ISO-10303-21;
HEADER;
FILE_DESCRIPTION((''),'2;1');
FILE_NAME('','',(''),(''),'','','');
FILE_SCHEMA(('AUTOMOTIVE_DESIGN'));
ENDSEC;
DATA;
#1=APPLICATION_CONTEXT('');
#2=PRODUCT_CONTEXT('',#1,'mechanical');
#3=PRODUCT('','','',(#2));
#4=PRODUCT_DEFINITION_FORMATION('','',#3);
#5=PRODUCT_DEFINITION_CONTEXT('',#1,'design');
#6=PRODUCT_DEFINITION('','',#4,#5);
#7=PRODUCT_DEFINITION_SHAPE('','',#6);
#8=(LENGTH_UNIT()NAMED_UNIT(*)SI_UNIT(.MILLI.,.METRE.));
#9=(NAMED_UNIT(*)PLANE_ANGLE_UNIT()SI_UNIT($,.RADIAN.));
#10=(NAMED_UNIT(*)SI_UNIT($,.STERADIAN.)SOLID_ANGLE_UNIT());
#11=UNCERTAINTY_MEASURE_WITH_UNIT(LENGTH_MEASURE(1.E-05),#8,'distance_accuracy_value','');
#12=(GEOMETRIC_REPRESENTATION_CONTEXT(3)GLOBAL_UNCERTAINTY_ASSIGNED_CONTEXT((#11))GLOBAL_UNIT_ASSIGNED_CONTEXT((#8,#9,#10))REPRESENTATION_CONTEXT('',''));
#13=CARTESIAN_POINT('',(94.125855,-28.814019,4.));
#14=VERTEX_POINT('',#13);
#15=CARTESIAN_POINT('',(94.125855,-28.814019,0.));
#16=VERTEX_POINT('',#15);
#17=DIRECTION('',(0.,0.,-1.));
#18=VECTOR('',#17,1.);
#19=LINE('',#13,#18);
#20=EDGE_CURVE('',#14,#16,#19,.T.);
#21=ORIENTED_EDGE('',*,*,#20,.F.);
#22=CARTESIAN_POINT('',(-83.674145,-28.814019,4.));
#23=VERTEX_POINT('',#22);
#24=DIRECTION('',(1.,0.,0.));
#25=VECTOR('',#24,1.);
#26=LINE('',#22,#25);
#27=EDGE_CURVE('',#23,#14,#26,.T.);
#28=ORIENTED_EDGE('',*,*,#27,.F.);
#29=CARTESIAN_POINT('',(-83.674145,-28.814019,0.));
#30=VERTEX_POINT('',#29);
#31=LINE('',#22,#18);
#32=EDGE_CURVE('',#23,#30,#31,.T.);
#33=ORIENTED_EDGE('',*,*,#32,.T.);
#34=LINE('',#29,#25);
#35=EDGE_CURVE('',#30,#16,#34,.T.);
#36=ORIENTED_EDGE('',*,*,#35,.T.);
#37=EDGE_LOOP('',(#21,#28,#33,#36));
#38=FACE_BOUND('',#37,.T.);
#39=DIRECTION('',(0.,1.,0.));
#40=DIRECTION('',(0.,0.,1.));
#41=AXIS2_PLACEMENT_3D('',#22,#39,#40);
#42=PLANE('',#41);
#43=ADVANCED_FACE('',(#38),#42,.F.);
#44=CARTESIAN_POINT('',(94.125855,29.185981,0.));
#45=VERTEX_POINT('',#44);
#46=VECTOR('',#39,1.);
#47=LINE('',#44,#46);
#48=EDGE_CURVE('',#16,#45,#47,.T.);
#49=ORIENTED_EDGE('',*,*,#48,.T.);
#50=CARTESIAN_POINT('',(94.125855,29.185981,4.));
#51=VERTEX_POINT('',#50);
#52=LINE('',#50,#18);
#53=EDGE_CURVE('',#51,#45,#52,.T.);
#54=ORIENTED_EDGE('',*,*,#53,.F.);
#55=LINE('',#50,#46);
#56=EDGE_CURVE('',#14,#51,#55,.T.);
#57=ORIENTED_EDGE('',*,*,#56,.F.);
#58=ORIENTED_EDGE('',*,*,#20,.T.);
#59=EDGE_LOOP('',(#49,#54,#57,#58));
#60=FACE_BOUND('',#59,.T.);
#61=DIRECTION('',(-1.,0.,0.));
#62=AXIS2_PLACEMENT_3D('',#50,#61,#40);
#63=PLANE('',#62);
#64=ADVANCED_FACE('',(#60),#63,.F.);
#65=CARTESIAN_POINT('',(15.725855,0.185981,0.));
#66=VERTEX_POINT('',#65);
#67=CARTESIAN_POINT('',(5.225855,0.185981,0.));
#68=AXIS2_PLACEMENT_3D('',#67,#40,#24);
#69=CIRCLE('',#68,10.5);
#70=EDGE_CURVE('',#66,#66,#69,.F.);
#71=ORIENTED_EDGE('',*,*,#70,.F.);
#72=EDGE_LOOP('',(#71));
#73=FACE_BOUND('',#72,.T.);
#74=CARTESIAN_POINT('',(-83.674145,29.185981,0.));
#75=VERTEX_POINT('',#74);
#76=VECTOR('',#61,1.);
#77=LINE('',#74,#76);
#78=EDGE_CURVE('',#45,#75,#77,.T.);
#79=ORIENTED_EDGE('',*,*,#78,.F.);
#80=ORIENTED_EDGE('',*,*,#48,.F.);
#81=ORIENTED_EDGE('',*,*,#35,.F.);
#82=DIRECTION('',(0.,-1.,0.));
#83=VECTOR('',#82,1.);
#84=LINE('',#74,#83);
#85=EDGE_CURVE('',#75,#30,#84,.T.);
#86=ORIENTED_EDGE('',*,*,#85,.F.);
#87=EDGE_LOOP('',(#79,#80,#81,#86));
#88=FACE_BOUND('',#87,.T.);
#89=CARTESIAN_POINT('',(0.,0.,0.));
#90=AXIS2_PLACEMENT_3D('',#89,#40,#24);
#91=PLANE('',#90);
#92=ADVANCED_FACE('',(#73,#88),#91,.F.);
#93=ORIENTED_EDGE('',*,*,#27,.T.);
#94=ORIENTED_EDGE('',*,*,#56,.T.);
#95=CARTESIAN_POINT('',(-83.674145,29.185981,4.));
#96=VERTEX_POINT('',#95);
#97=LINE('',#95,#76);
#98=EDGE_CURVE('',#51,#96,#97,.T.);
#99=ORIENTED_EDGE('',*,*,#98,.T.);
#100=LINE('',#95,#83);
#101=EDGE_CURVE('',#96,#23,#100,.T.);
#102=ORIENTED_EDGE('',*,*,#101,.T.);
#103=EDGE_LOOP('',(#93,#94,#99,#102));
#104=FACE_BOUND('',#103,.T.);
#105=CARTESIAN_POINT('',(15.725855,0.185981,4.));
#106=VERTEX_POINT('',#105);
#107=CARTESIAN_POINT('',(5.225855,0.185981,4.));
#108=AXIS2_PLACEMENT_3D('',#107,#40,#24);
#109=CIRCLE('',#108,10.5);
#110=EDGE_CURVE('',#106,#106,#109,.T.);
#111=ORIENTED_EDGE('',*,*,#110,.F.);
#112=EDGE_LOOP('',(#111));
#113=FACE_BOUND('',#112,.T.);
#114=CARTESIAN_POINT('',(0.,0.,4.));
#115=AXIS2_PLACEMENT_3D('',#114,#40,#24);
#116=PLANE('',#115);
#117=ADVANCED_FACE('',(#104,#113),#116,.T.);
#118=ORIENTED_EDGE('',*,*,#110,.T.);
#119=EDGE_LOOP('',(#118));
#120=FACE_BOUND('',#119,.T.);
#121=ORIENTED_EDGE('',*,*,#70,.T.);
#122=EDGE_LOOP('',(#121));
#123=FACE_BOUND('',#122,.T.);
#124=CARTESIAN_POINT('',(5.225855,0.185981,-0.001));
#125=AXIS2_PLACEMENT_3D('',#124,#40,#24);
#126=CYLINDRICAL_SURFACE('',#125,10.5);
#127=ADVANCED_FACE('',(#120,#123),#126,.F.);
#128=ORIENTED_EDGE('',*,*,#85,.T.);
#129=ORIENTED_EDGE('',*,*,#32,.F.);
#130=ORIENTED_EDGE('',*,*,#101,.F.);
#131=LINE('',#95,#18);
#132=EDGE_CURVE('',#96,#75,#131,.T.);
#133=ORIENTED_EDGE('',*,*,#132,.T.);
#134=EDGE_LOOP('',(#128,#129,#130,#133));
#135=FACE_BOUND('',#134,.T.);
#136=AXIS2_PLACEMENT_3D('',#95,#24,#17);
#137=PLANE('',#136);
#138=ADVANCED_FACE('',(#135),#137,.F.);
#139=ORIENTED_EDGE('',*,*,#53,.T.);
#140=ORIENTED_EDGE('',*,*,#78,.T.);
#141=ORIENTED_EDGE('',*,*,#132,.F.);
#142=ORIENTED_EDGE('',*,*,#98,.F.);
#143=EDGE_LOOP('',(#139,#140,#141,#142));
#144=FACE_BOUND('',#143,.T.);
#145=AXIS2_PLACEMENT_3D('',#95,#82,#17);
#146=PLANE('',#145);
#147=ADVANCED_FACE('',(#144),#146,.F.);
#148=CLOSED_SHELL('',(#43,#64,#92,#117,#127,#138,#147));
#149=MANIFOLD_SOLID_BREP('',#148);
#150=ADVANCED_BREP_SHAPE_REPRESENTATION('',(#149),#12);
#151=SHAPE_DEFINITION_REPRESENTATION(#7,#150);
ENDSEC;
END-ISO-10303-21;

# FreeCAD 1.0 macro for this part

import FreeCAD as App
import Part
import Sketcher
from FreeCAD import Vector


def add_polygon(sketch, points):
    """Adds a closed chain of lines whose ends are joined by coincident constraints."""
    first, n = sketch.GeometryCount, len(points)
    for a, b in zip(points, points[1:] + points[:1]):
        sketch.addGeometry(Part.LineSegment(App.Vector(*a, 0), App.Vector(*b, 0)), False)
    for i in range(n):
        sketch.addConstraint(Sketcher.Constraint("Coincident", first + i, 2, first + (i + 1) % n, 1))

doc = App.newDocument("Part")
body = doc.addObject("PartDesign::Body", "Body")

sketch1 = body.newObject("Sketcher::SketchObject", "Sketch")
sketch1.AttachmentSupport = (doc.getObject("XY_Plane"), [""])
sketch1.MapMode = "FlatFace"
add_polygon(sketch1, [(-84, 29), (-84, -29), (94, -29), (94, 29)])
sketch1.addConstraint(Sketcher.Constraint("Vertical", 0))
sketch1.addConstraint(Sketcher.Constraint("Horizontal", 1))
sketch1.addConstraint(Sketcher.Constraint("Vertical", 2))
sketch1.addConstraint(Sketcher.Constraint("Horizontal", 3))
sketch1.addConstraint(Sketcher.Constraint("DistanceY", 0, 2, 0, 1, 58.0))
sketch1.addConstraint(Sketcher.Constraint("DistanceX", 1, 1, 1, 2, 177.8))
sketch1.addConstraint(Sketcher.Constraint("DistanceY", 0, 2, -1, 1, 28.814019))
sketch1.addConstraint(Sketcher.Constraint("DistanceX", 0, 2, -1, 1, 83.674145))
pad1 = body.newObject("PartDesign::Pad", "Pad")
pad1.Profile = sketch1
pad1.Length = 4

sketch2 = body.newObject("Sketcher::SketchObject", "Sketch001")
sketch2.AttachmentSupport = (doc.getObject("XY_Plane"), [""])
sketch2.MapMode = "FlatFace"
sketch2.AttachmentOffset = App.Placement(Vector(0, 0, 4), App.Rotation())
sketch2.addGeometry(Part.Circle(Vector(5, 0, 0), Vector(0, 0, 1), 10), False)
sketch2.addConstraint(Sketcher.Constraint("Diameter", 0, 21.0))
sketch2.addConstraint(Sketcher.Constraint("DistanceY", -1, 1, 0, 3, 0.185981))
sketch2.addConstraint(Sketcher.Constraint("DistanceX", -1, 1, 0, 3, 5.225855))
pocket1 = body.newObject("PartDesign::Pocket", "Pocket")
pocket1.Profile = sketch2
pocket1.Type = "UpToFirst"

doc.recompute()
